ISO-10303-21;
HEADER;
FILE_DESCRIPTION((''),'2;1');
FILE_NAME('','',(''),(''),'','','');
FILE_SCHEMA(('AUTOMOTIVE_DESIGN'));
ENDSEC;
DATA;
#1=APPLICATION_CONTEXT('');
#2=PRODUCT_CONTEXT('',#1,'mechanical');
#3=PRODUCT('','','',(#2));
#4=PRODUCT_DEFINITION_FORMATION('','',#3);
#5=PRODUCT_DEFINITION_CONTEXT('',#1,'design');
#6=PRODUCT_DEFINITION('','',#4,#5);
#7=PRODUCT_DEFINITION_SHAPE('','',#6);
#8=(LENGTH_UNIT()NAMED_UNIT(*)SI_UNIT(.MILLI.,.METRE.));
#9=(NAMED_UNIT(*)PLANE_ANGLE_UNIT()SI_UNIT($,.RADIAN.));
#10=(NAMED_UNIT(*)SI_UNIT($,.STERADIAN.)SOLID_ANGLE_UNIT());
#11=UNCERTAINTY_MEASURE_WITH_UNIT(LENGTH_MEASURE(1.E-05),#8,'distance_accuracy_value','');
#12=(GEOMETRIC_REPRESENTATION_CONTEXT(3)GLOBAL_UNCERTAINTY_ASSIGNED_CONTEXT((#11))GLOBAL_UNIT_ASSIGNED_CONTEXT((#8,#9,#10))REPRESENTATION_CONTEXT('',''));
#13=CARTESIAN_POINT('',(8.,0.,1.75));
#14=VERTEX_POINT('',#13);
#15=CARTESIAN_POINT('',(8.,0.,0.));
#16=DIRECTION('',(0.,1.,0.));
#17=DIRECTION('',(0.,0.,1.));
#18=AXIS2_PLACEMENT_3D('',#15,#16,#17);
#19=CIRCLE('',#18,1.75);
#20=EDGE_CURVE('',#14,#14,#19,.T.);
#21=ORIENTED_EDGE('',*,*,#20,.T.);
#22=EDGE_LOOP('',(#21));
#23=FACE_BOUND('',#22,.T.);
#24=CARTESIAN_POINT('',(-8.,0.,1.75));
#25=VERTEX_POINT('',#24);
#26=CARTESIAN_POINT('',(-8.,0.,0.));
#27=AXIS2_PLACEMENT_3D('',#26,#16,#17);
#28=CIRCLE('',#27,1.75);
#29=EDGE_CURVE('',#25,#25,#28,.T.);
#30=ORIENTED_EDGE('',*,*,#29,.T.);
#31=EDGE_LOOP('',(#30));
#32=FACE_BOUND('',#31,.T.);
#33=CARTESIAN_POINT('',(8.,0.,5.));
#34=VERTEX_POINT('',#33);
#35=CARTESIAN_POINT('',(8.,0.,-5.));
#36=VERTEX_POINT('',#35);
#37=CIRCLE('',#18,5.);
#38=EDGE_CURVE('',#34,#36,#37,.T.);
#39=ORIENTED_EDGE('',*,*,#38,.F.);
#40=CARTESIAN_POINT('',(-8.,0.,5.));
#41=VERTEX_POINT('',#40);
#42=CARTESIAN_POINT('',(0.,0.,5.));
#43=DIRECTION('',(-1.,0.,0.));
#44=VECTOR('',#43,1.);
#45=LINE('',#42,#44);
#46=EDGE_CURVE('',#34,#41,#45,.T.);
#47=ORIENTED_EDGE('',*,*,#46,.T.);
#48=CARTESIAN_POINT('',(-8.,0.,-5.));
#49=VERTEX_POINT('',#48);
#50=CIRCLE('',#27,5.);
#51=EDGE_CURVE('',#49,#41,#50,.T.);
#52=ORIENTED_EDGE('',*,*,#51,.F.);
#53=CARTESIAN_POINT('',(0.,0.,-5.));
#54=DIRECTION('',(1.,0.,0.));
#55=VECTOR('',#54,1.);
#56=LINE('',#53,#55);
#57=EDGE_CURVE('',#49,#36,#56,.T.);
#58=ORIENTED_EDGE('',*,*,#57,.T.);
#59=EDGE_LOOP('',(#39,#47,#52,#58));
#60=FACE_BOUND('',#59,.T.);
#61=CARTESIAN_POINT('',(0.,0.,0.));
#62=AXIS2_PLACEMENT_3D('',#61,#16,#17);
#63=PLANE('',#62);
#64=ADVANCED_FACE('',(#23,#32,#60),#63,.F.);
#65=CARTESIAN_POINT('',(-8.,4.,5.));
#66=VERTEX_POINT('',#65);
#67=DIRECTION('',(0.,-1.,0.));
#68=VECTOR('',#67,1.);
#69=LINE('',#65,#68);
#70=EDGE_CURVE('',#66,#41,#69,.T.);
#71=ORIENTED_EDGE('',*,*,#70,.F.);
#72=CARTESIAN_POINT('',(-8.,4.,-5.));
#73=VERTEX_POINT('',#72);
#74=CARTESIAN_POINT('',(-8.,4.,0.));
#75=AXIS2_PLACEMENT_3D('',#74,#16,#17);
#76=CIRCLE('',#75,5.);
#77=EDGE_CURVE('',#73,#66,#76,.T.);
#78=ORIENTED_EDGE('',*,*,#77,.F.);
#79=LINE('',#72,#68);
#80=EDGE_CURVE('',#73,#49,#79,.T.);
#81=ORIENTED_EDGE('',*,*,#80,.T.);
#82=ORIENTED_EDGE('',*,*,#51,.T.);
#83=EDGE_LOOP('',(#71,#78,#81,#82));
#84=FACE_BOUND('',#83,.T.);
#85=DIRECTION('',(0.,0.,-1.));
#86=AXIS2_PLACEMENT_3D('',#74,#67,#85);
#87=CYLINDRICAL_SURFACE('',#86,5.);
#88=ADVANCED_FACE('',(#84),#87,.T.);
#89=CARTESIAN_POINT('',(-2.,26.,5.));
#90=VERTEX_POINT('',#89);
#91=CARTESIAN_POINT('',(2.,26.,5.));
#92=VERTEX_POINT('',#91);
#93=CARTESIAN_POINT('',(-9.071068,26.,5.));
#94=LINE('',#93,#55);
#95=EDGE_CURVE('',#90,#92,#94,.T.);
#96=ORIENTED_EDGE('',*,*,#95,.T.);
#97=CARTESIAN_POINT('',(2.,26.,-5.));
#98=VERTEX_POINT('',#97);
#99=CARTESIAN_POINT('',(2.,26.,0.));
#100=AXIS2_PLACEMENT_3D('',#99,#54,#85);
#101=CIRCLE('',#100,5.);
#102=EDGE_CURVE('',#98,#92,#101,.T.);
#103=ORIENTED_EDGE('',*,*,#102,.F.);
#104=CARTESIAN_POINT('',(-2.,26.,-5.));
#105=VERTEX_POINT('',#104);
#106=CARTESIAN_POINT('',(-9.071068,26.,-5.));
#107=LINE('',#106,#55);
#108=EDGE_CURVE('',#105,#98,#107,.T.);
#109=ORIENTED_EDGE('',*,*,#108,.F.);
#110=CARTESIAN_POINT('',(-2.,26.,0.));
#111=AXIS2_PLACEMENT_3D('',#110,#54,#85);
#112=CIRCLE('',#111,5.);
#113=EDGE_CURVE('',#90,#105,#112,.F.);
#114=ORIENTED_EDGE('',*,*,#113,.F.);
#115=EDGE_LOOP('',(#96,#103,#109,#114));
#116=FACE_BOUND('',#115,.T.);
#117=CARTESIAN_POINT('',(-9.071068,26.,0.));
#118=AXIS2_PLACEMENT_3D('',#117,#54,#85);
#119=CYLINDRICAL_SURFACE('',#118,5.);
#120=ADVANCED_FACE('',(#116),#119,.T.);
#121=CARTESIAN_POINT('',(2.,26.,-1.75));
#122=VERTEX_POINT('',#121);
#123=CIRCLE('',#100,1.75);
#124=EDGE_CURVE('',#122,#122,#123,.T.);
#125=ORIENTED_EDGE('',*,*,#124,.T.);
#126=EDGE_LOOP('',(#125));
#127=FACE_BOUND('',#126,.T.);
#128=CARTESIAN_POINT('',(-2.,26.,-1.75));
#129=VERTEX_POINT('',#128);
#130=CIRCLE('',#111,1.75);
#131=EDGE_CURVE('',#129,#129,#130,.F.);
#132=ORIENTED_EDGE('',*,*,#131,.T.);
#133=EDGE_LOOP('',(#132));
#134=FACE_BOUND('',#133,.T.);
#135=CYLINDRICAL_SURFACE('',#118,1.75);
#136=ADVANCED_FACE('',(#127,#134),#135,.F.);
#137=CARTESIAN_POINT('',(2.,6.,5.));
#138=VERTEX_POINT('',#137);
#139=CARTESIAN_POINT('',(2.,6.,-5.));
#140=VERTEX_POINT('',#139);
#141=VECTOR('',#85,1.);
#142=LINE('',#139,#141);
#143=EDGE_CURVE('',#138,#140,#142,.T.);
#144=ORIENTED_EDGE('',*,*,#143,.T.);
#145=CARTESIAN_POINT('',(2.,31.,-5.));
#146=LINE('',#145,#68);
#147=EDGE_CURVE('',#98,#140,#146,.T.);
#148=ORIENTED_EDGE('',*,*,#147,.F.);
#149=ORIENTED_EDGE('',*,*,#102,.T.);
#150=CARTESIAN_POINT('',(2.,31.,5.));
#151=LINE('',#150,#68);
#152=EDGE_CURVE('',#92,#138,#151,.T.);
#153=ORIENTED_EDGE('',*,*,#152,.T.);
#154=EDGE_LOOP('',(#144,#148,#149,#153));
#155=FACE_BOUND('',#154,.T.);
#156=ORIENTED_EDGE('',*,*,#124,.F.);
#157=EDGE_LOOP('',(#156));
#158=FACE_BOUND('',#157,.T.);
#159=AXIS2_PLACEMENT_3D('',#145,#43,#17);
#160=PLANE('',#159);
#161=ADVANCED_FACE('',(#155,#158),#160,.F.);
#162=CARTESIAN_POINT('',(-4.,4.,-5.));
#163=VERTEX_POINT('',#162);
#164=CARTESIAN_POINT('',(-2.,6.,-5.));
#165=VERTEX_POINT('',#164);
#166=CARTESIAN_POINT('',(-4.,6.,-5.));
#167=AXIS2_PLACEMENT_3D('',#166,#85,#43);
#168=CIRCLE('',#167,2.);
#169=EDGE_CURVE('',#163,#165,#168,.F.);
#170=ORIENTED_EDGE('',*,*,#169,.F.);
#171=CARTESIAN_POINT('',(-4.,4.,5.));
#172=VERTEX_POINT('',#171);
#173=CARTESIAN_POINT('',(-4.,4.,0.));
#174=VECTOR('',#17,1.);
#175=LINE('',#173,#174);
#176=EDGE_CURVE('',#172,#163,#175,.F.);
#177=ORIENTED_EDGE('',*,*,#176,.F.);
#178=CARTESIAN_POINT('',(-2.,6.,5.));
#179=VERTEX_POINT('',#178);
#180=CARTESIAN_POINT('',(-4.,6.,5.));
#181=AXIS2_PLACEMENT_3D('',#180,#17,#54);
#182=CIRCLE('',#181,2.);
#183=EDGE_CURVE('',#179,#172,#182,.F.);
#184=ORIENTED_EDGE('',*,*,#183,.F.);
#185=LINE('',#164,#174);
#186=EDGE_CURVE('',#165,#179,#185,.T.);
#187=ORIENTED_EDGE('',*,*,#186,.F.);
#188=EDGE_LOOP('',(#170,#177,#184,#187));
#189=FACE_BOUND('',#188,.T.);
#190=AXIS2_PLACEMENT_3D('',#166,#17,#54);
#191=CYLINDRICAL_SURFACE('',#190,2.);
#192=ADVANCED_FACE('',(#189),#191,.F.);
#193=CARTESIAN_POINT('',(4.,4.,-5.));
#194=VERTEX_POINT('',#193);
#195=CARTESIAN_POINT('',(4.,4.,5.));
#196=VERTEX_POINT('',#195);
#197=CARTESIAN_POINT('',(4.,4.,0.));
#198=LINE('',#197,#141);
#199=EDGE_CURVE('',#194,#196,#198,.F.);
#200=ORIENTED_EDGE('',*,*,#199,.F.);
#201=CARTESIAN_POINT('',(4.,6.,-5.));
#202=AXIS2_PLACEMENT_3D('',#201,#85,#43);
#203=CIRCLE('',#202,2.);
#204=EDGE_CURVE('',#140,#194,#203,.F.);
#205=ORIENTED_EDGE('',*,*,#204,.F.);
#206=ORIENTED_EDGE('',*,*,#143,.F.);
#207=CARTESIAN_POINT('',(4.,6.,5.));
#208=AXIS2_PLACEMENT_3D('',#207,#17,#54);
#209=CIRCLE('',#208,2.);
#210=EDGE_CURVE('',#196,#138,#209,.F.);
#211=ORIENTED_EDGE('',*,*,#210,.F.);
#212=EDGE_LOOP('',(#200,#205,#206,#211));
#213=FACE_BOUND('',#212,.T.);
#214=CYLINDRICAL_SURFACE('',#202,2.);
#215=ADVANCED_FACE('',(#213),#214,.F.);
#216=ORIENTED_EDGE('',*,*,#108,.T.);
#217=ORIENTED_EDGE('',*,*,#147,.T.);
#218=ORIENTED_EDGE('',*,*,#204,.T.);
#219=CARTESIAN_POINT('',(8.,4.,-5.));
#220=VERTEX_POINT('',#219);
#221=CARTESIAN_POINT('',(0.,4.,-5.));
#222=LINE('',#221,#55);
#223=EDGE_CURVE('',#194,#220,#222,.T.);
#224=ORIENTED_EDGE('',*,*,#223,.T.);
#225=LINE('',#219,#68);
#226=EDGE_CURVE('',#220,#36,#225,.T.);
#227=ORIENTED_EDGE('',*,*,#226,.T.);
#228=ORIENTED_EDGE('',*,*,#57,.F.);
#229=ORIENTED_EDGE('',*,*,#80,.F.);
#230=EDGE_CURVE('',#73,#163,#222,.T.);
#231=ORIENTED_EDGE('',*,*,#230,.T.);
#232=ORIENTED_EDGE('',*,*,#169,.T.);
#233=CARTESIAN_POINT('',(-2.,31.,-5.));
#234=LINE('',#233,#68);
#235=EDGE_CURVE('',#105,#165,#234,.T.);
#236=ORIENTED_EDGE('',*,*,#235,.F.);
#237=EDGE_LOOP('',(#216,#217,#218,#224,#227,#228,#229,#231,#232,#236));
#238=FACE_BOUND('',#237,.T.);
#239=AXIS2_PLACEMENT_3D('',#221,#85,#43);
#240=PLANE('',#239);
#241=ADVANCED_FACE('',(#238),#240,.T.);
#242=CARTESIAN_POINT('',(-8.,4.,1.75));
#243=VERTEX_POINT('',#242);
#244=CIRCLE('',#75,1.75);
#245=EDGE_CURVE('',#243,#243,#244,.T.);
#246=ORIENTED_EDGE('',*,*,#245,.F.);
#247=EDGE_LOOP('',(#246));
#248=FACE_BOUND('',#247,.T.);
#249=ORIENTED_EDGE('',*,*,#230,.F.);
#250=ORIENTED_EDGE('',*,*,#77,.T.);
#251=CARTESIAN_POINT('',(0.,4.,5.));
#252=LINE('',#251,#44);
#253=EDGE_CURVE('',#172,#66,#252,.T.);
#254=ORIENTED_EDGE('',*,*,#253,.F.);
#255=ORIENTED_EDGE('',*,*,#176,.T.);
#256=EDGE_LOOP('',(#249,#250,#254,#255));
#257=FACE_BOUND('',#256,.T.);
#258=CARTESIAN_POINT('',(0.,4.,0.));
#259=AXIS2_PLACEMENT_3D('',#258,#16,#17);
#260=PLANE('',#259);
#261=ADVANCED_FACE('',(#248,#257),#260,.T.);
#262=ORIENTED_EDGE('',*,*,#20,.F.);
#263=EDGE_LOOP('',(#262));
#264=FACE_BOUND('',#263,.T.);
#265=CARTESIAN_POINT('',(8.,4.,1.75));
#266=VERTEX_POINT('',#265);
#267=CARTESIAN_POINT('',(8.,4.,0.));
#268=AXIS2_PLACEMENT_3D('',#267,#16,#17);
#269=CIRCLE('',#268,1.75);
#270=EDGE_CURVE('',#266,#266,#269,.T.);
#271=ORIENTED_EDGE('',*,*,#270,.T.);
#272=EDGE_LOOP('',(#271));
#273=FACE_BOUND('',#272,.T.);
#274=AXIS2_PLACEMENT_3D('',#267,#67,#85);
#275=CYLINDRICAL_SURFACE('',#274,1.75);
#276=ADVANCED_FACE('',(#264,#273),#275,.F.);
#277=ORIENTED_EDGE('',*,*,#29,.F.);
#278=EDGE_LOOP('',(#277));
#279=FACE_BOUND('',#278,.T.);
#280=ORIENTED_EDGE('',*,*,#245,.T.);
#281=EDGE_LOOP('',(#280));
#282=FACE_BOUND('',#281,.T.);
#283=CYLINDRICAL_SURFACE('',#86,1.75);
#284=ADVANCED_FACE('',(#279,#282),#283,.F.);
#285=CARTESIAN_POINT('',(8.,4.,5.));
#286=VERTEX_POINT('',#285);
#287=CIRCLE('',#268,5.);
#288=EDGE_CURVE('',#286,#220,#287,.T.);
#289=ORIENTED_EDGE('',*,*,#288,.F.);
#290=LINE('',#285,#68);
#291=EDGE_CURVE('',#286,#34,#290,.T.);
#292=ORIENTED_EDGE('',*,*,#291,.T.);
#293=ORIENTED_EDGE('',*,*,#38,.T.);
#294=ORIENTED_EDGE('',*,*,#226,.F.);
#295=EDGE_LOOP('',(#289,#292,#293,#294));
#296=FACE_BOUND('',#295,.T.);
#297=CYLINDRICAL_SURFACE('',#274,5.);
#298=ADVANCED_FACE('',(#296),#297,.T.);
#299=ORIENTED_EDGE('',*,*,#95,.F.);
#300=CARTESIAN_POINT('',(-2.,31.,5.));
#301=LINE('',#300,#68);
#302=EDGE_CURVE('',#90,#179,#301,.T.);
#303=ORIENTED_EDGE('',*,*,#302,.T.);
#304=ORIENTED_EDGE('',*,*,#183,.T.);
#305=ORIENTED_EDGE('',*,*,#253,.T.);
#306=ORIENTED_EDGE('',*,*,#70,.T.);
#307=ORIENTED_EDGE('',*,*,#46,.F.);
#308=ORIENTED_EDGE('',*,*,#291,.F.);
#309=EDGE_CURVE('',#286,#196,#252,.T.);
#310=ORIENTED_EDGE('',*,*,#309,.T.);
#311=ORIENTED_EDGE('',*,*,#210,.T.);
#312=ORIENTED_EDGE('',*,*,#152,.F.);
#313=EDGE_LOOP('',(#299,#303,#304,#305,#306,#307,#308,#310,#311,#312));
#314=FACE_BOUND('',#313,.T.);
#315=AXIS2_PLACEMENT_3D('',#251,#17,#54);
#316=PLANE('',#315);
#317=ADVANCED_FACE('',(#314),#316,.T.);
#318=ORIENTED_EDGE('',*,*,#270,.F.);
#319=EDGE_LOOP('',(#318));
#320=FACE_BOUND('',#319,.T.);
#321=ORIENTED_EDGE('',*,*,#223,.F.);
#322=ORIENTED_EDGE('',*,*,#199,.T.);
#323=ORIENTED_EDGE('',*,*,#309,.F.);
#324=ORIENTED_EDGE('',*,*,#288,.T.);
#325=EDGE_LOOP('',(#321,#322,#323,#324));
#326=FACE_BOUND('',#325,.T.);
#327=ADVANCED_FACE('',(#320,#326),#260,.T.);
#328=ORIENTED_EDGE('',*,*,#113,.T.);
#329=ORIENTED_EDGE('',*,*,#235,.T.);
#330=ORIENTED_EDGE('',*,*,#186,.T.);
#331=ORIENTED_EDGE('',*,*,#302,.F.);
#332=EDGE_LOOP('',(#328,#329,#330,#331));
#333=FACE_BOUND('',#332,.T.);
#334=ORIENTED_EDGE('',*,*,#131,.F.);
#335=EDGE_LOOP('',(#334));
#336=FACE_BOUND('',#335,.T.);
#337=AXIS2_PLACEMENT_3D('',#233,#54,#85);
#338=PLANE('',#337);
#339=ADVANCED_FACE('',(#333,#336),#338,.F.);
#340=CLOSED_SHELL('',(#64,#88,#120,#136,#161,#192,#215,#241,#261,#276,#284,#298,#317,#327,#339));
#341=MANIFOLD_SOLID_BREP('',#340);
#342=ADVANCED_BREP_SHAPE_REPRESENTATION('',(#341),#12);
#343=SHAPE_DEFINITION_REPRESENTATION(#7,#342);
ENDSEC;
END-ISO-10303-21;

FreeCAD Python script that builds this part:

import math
import FreeCAD as App
import Part
import Sketcher
from FreeCAD import Vector
Q = App.Units.Quantity


def edges_at(feature, points):
    """Names of the edges that pass closest to the given points."""
    edges = feature.Shape.Edges
    near = lambda p: min(range(len(edges)), key=lambda i: edges[i].distToShape(Part.Vertex(*p))[0])
    return sorted({f"Edge{near(p) + 1}" for p in points})

doc = App.newDocument("Part")
params = doc.addObject("Spreadsheet::Sheet", "Params")
for row, (alias, value) in enumerate([
    ("sketch1_radius", "5 mm"),
    ("sketch1_diameter", "3.5 mm"),
    ("sketch1_width", "16 mm"),
    ("pad1_length", "4 mm"),
    ("sketch2_width", "4 mm"),
    ("sketch2_height", "10 mm"),
    ("pad2_length", "27 mm"),
    ("sketch3_radius", "5 mm"),
    ("sketch3_diameter", "3.5 mm"),
    ("pocket1_length", "4 mm"),
    ("fillet_radius", "2 mm"),
    ("fillet2_radius", "2 mm"),
], start=1):
    params.set(f"A{row}", alias)
    params.set(f"B{row}", "=" + value)
    params.setAlias(f"B{row}", alias)

body = doc.addObject("PartDesign::Body", "Body")

sketch1 = doc.addObject("Sketcher::SketchObject", "Sketch")
body.addObject(sketch1)
sketch1.AttachmentSupport = (doc.XZ_Plane, [""])
sketch1.MapMode = "FlatFace"
sketch1.addGeometry(Part.ArcOfCircle(Part.Circle(Vector(-8, 0, 0), Vector(0, 0, 1), 5), math.radians(90), math.radians(270)), False)
sketch1.addGeometry(Part.LineSegment(Vector(-8, 5, 0), Vector(8, 5, 0)), False)
sketch1.addGeometry(Part.ArcOfCircle(Part.Circle(Vector(8, 0, 0), Vector(0, 0, 1), 5), math.radians(-90), math.radians(90)), False)
sketch1.addGeometry(Part.LineSegment(Vector(8, -5, 0), Vector(-8, -5, 0)), False)
sketch1.addGeometry(Part.Circle(Vector(-8, 0, 0), Vector(0, 0, 1), 1.75), False)
sketch1.addGeometry(Part.Circle(Vector(8, 0, 0), Vector(0, 0, 1), 1.75), False)
sketch1.addConstraint(Sketcher.Constraint("Tangent", 0, 1, 1, 1))
sketch1.addConstraint(Sketcher.Constraint("Tangent", 1, 2, 2, 2))
sketch1.addConstraint(Sketcher.Constraint("Tangent", 2, 1, 3, 1))
sketch1.addConstraint(Sketcher.Constraint("Tangent", 3, 2, 0, 2))
sketch1.addConstraint(Sketcher.Constraint("Horizontal", 1))
sketch1.addConstraint(Sketcher.Constraint("Horizontal", 3))
sketch1.addConstraint(Sketcher.Constraint("Coincident", 4, 3, 0, 3))
sketch1.addConstraint(Sketcher.Constraint("Coincident", 5, 3, 2, 3))
sketch1.addConstraint(Sketcher.Constraint("Equal", 4, 5))
sketch1.addConstraint(Sketcher.Constraint("Symmetric", 0, 3, 2, 3, -1, 1))
sketch1.addConstraint(Sketcher.Constraint("Radius", 0, Q("5 mm")))
sketch1.addConstraint(Sketcher.Constraint("Diameter", 4, Q("3.5 mm")))
sketch1.addConstraint(Sketcher.Constraint("DistanceX", 1, 1, 1, 2, Q("16 mm")))
sketch1.setExpression("Constraints[10]", "Params.sketch1_radius")
sketch1.setExpression("Constraints[11]", "Params.sketch1_diameter")
sketch1.setExpression("Constraints[12]", "Params.sketch1_width")
pad1 = doc.addObject("PartDesign::Pad", "Pad")
body.addObject(pad1)
pad1.Profile = sketch1
pad1.setExpression("Length", "Params.pad1_length")
pad1.Reversed = True

sketch2 = doc.addObject("Sketcher::SketchObject", "Sketch001")
body.addObject(sketch2)
sketch2.AttachmentSupport = (doc.XZ_Plane, [""])
sketch2.MapMode = "FlatFace"
sketch2.AttachmentOffset = App.Placement(Vector(0, 0, -4), App.Rotation())
sketch2.addGeometry(Part.LineSegment(Vector(-2, -5, 0), Vector(-2, 5, 0)), False)
sketch2.addGeometry(Part.LineSegment(Vector(-2, 5, 0), Vector(2, 5, 0)), False)
sketch2.addGeometry(Part.LineSegment(Vector(2, 5, 0), Vector(2, -5, 0)), False)
sketch2.addGeometry(Part.LineSegment(Vector(2, -5, 0), Vector(-2, -5, 0)), False)
sketch2.addConstraint(Sketcher.Constraint("Coincident", 0, 2, 1, 1))
sketch2.addConstraint(Sketcher.Constraint("Coincident", 1, 2, 2, 1))
sketch2.addConstraint(Sketcher.Constraint("Coincident", 2, 2, 3, 1))
sketch2.addConstraint(Sketcher.Constraint("Coincident", 3, 2, 0, 1))
sketch2.addConstraint(Sketcher.Constraint("Vertical", 0))
sketch2.addConstraint(Sketcher.Constraint("Horizontal", 1))
sketch2.addConstraint(Sketcher.Constraint("Vertical", 2))
sketch2.addConstraint(Sketcher.Constraint("Horizontal", 3))
sketch2.addConstraint(Sketcher.Constraint("Symmetric", 0, 2, 2, 2, -1, 1))
sketch2.addConstraint(Sketcher.Constraint("DistanceX", 1, 1, 1, 2, Q("4 mm")))
sketch2.addConstraint(Sketcher.Constraint("DistanceY", 0, 1, 0, 2, Q("10 mm")))
sketch2.setExpression("Constraints[9]", "Params.sketch2_width")
sketch2.setExpression("Constraints[10]", "Params.sketch2_height")
pad2 = doc.addObject("PartDesign::Pad", "Pad001")
body.addObject(pad2)
pad2.Profile = sketch2
pad2.setExpression("Length", "Params.pad2_length")
pad2.Reversed = True

sketch3 = doc.addObject("Sketcher::SketchObject", "Sketch002")
body.addObject(sketch3)
sketch3.AttachmentSupport = (doc.YZ_Plane, [""])
sketch3.MapMode = "FlatFace"
sketch3.AttachmentOffset = App.Placement(Vector(0, 0, 2), App.Rotation())
sketch3.addGeometry(Part.LineSegment(Vector(31, 5, 0), Vector(26, 5, 0)), False)
sketch3.addGeometry(Part.ArcOfCircle(Part.Circle(Vector(26, 0, 0), Vector(0, 0, 1), 5), math.radians(0), math.radians(90)), False)
sketch3.addGeometry(Part.LineSegment(Vector(31, 0, 0), Vector(31, 5, 0)), False)
sketch3.addGeometry(Part.ArcOfCircle(Part.Circle(Vector(26, 0, 0), Vector(0, 0, 1), 5), math.radians(-90), math.radians(0)), False)
sketch3.addGeometry(Part.LineSegment(Vector(26, -5, 0), Vector(31, -5, 0)), False)
sketch3.addGeometry(Part.LineSegment(Vector(31, -5, 0), Vector(31, 0, 0)), False)
sketch3.addGeometry(Part.Circle(Vector(26, 0, 0), Vector(0, 0, 1), 1.75), False)
sketch3.addConstraint(Sketcher.Constraint("Tangent", 0, 2, 1, 2))
sketch3.addConstraint(Sketcher.Constraint("Tangent", 1, 1, 2, 1))
sketch3.addConstraint(Sketcher.Constraint("Coincident", 2, 2, 0, 1))
sketch3.addConstraint(Sketcher.Constraint("Tangent", 3, 1, 4, 1))
sketch3.addConstraint(Sketcher.Constraint("Coincident", 4, 2, 5, 1))
sketch3.addConstraint(Sketcher.Constraint("Tangent", 5, 2, 3, 2))
sketch3.addConstraint(Sketcher.Constraint("Horizontal", 0))
sketch3.addConstraint(Sketcher.Constraint("Vertical", 2))
sketch3.addConstraint(Sketcher.Constraint("Horizontal", 4))
sketch3.addConstraint(Sketcher.Constraint("Vertical", 5))
sketch3.addConstraint(Sketcher.Constraint("Coincident", 3, 3, 1, 3))
sketch3.addConstraint(Sketcher.Constraint("Coincident", 6, 3, 1, 3))
sketch3.addConstraint(Sketcher.Constraint("Equal", 1, 3))
sketch3.addConstraint(Sketcher.Constraint("PointOnObject", 1, 3, -1))
sketch3.addConstraint(Sketcher.Constraint("Radius", 1, Q("5 mm")))
sketch3.addConstraint(Sketcher.Constraint("Diameter", 6, Q("3.5 mm")))
sketch3.addConstraint(Sketcher.Constraint("DistanceX", -1, 1, 1, 3, Q("26 mm")))
sketch3.setExpression("Constraints[14]", "Params.sketch3_radius")
sketch3.setExpression("Constraints[15]", "Params.sketch3_diameter")
pocket1 = doc.addObject("PartDesign::Pocket", "Pocket")
body.addObject(pocket1)
pocket1.Profile = sketch3
pocket1.setExpression("Length", "Params.pocket1_length")
doc.recompute()

fillet = doc.addObject("PartDesign::Fillet", "Fillet")
body.addObject(fillet)
fillet.Base = (pocket1, edges_at(pocket1, [(2, 4, 0)]))
fillet.setExpression("Radius", "Params.fillet_radius")
doc.recompute()

fillet2 = doc.addObject("PartDesign::Fillet", "Fillet001")
body.addObject(fillet2)
fillet2.Base = (fillet, edges_at(fillet, [(-2, 4, 0)]))
fillet2.setExpression("Radius", "Params.fillet2_radius")

doc.recompute()
